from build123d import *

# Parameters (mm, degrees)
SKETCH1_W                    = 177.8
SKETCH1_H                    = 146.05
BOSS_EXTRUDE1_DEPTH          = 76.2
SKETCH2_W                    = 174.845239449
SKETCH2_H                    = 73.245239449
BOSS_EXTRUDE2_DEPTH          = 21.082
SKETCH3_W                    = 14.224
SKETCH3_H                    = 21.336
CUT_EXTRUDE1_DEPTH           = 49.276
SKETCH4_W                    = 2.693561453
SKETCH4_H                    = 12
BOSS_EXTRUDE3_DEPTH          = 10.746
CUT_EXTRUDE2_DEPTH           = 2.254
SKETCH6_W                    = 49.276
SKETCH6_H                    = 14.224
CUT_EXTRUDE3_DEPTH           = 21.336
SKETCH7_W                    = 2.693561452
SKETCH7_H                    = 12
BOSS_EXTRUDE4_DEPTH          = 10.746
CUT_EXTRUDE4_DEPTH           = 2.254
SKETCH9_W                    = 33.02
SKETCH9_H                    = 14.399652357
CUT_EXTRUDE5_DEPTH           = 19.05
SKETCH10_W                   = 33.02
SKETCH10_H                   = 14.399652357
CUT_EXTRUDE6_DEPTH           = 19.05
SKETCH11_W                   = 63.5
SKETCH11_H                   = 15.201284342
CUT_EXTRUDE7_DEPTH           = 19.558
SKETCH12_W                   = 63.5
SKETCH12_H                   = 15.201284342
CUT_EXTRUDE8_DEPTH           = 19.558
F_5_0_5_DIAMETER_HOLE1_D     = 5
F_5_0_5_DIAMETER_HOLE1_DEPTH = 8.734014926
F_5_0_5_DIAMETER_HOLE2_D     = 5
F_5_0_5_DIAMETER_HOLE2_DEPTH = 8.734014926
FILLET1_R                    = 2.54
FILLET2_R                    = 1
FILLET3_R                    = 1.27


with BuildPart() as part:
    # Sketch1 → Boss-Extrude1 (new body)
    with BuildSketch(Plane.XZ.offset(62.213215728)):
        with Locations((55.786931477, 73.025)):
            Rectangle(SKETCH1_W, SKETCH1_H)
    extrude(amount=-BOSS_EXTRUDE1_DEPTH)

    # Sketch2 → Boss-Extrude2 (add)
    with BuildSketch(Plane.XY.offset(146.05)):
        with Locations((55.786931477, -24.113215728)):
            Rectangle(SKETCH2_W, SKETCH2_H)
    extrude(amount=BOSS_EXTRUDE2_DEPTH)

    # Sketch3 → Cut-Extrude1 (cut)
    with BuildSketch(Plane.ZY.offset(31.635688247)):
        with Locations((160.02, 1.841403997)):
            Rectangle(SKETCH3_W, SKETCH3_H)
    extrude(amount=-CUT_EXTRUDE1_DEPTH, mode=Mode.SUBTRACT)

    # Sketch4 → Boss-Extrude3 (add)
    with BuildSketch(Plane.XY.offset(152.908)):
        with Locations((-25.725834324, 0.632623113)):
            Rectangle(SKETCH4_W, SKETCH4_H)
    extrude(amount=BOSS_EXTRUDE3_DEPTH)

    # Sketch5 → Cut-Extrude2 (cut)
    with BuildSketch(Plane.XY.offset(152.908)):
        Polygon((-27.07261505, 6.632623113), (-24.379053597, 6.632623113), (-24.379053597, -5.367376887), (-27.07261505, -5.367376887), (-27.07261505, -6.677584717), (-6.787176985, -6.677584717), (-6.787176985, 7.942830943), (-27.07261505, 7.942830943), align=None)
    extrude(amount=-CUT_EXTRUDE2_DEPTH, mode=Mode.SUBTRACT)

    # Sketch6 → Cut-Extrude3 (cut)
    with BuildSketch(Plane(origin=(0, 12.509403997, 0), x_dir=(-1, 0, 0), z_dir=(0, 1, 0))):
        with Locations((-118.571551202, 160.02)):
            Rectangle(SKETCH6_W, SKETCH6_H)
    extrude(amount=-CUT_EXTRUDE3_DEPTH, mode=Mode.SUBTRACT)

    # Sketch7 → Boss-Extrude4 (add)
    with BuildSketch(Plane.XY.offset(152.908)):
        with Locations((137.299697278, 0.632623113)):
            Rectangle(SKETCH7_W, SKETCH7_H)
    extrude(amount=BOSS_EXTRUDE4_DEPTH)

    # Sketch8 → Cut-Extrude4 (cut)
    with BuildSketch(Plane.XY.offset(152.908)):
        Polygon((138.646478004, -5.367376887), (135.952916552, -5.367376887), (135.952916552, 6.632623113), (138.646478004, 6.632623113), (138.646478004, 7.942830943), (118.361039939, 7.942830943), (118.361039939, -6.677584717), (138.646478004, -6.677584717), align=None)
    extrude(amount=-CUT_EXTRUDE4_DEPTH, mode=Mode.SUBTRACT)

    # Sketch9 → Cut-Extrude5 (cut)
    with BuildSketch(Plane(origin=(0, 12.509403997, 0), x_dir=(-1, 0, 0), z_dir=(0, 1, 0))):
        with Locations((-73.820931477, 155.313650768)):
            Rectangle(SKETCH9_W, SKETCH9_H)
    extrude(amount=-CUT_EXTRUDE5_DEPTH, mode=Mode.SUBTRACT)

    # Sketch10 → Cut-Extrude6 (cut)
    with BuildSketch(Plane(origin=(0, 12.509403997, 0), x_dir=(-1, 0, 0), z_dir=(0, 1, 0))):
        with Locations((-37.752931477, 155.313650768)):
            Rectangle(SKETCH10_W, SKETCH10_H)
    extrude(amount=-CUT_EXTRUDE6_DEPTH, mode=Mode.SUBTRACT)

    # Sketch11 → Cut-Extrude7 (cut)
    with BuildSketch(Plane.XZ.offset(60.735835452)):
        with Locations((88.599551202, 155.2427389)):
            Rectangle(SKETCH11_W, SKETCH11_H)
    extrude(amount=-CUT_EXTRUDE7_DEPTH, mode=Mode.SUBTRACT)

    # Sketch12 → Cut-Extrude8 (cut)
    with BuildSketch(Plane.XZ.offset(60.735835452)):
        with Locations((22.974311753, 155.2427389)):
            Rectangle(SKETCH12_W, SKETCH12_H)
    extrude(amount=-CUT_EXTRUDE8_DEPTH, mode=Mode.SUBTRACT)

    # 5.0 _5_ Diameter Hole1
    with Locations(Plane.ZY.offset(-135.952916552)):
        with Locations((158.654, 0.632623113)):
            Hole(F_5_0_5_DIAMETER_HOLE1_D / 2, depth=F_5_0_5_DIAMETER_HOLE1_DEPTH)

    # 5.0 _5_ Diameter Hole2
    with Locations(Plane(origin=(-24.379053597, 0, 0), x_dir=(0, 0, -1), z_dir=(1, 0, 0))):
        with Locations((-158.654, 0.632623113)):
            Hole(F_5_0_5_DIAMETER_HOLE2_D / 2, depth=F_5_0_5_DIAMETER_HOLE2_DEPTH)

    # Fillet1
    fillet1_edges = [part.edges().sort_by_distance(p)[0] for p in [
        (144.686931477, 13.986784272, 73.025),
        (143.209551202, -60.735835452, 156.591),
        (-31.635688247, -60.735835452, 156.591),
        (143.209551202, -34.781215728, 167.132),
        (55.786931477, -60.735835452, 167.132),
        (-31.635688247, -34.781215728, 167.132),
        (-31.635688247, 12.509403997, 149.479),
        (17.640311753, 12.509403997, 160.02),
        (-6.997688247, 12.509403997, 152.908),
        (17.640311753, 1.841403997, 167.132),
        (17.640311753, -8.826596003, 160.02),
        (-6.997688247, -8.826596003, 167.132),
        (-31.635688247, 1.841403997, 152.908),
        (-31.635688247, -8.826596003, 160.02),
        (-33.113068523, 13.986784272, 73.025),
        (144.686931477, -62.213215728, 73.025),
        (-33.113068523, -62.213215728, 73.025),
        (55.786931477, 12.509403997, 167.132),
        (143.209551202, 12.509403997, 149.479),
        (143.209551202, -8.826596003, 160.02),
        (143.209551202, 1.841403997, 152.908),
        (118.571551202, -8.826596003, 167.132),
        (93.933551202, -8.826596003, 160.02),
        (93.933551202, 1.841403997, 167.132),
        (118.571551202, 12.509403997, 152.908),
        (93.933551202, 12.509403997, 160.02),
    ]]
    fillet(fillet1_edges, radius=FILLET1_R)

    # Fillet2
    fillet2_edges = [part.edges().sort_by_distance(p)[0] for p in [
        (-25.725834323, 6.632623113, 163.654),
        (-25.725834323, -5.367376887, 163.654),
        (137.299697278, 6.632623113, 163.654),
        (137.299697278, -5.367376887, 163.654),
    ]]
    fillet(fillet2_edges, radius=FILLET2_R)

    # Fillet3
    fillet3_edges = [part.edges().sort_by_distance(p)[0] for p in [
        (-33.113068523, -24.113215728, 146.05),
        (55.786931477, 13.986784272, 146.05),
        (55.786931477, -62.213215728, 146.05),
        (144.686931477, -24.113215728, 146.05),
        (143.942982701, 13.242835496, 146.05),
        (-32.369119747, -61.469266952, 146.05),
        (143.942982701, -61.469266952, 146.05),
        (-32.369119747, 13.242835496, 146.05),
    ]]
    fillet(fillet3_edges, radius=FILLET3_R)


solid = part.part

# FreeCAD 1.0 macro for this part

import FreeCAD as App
import Part
import Sketcher
from FreeCAD import Vector
Q = App.Units.Quantity


def edges_at(feature, points):
    """Names of the edges that pass closest to the given points."""
    edges = feature.Shape.Edges
    near = lambda p: min(range(len(edges)), key=lambda i: edges[i].distToShape(Part.Vertex(*p))[0])
    return sorted({f"Edge{near(p) + 1}" for p in points})

doc = App.newDocument("Part")
params = doc.addObject("Spreadsheet::Sheet", "Params")
for row, (alias, value) in enumerate([
    ("sketch1_width", "7 in"),
    ("sketch1_height", "5.75 in"),
    ("pad1_length", "3 in"),
    ("pad2_length", "0.83 in"),
    ("sketch3_width", "0.84 in"),
    ("sketch3_height", "0.56 in"),
    ("pocket1_length", "1.94 in"),
    ("pad3_length", "10.746 mm"),
    ("pocket2_length", "2.254 mm"),
    ("sketch6_width", "1.94 in"),
    ("sketch6_height", "0.56 in"),
    ("pocket3_length", "0.84 in"),
    ("pad4_length", "10.746 mm"),
    ("pocket4_length", "2.254 mm"),
    ("sketch9_width", "1.3 in"),
    ("pocket5_length", "0.75 in"),
    ("sketch10_width", "1.3 in"),
    ("pocket6_length", "0.75 in"),
    ("sketch11_width", "2.5 in"),
    ("pocket7_length", "0.77 in"),
    ("sketch12_width", "2.5 in"),
    ("pocket8_length", "0.77 in"),
    ("hole_diameter", "5 mm"),
    ("hole_depth", "8.734015 mm"),
    ("hole2_diameter", "5 mm"),
    ("hole2_depth", "8.734015 mm"),
    ("fillet_radius", "0.1 in"),
    ("fillet2_radius", "1 mm"),
    ("fillet3_radius", "0.05 in"),
], start=1):
    params.set(f"A{row}", alias)
    params.set(f"B{row}", "=" + value)
    params.setAlias(f"B{row}", alias)

body = doc.addObject("PartDesign::Body", "Body")

# Sketch on XZ plane
sketch1 = body.newObject("Sketcher::SketchObject", "Sketch")
sketch1.AttachmentSupport = (doc.getObject("XZ_Plane"), [""])
sketch1.MapMode = "FlatFace"
sketch1.AttachmentOffset = App.Placement(Vector(0, 0, 62.213216), App.Rotation())
sketch1.addGeometry(Part.LineSegment(Vector(-33, 146, 0), Vector(-33, 0, 0)), False)
sketch1.addGeometry(Part.LineSegment(Vector(-33, 0, 0), Vector(145, 0, 0)), False)
sketch1.addGeometry(Part.LineSegment(Vector(145, 0, 0), Vector(145, 146, 0)), False)
sketch1.addGeometry(Part.LineSegment(Vector(145, 146, 0), Vector(-33, 146, 0)), False)
sketch1.addConstraint(Sketcher.Constraint("Coincident", 0, 2, 1, 1))
sketch1.addConstraint(Sketcher.Constraint("Coincident", 1, 2, 2, 1))
sketch1.addConstraint(Sketcher.Constraint("Coincident", 2, 2, 3, 1))
sketch1.addConstraint(Sketcher.Constraint("Coincident", 3, 2, 0, 1))
sketch1.addConstraint(Sketcher.Constraint("Vertical", 0))
sketch1.addConstraint(Sketcher.Constraint("Horizontal", 1))
sketch1.addConstraint(Sketcher.Constraint("Vertical", 2))
sketch1.addConstraint(Sketcher.Constraint("Horizontal", 3))
sketch1.addConstraint(Sketcher.Constraint("PointOnObject", 0, 2, -1))
sketch1.addConstraint(Sketcher.Constraint("DistanceX", 1, 1, 1, 2, Q("7 in")))
sketch1.addConstraint(Sketcher.Constraint("DistanceY", 0, 2, 0, 1, Q("5.75 in")))
sketch1.addConstraint(Sketcher.Constraint("DistanceX", 0, 2, -1, 1, 33.113069))
sketch1.setExpression("Constraints[9]", "Params.sketch1_width")
sketch1.setExpression("Constraints[10]", "Params.sketch1_height")
pad1 = body.newObject("PartDesign::Pad", "Pad")
pad1.Profile = sketch1
pad1.setExpression("Length", "Params.pad1_length")
pad1.Reversed = True

# Sketch on XY plane
sketch2 = body.newObject("Sketcher::SketchObject", "Sketch001")
sketch2.AttachmentSupport = (doc.getObject("XY_Plane"), [""])
sketch2.MapMode = "FlatFace"
sketch2.AttachmentOffset = App.Placement(Vector(0, 0, 5.75 * 25.4), App.Rotation())
sketch2.addGeometry(Part.LineSegment(Vector(-32, 13, 0), Vector(-32, -61, 0)), False)
sketch2.addGeometry(Part.LineSegment(Vector(-32, -61, 0), Vector(143, -61, 0)), False)
sketch2.addGeometry(Part.LineSegment(Vector(143, -61, 0), Vector(143, 13, 0)), False)
sketch2.addGeometry(Part.LineSegment(Vector(143, 13, 0), Vector(-32, 13, 0)), False)
sketch2.addConstraint(Sketcher.Constraint("Coincident", 0, 2, 1, 1))
sketch2.addConstraint(Sketcher.Constraint("Coincident", 1, 2, 2, 1))
sketch2.addConstraint(Sketcher.Constraint("Coincident", 2, 2, 3, 1))
sketch2.addConstraint(Sketcher.Constraint("Coincident", 3, 2, 0, 1))
sketch2.addConstraint(Sketcher.Constraint("Vertical", 0))
sketch2.addConstraint(Sketcher.Constraint("Horizontal", 1))
sketch2.addConstraint(Sketcher.Constraint("Vertical", 2))
sketch2.addConstraint(Sketcher.Constraint("Horizontal", 3))
sketch2.addConstraint(Sketcher.Constraint("DistanceX", 1, 1, 1, 2, 174.845239))
sketch2.addConstraint(Sketcher.Constraint("DistanceY", 0, 2, 0, 1, 73.245239))
sketch2.addConstraint(Sketcher.Constraint("DistanceX", 0, 2, -1, 1, 31.635688))
sketch2.addConstraint(Sketcher.Constraint("DistanceY", 0, 2, -1, 1, 60.735835))
pad2 = body.newObject("PartDesign::Pad", "Pad001")
pad2.Profile = sketch2
pad2.setExpression("Length", "Params.pad2_length")

# Sketch on YZ plane
sketch3 = body.newObject("Sketcher::SketchObject", "Sketch002")
sketch3.AttachmentSupport = (doc.getObject("YZ_Plane"), [""])
sketch3.MapMode = "FlatFace"
sketch3.AttachmentOffset = App.Placement(Vector(0, 0, -31.635688), App.Rotation())
sketch3.addGeometry(Part.LineSegment(Vector(13, 153, 0), Vector(-9, 153, 0)), False)
sketch3.addGeometry(Part.LineSegment(Vector(-9, 153, 0), Vector(-9, 167, 0)), False)
sketch3.addGeometry(Part.LineSegment(Vector(-9, 167, 0), Vector(13, 167, 0)), False)
sketch3.addGeometry(Part.LineSegment(Vector(13, 167, 0), Vector(13, 153, 0)), False)
sketch3.addConstraint(Sketcher.Constraint("Coincident", 0, 2, 1, 1))
sketch3.addConstraint(Sketcher.Constraint("Coincident", 1, 2, 2, 1))
sketch3.addConstraint(Sketcher.Constraint("Coincident", 2, 2, 3, 1))
sketch3.addConstraint(Sketcher.Constraint("Coincident", 3, 2, 0, 1))
sketch3.addConstraint(Sketcher.Constraint("Horizontal", 0))
sketch3.addConstraint(Sketcher.Constraint("Vertical", 1))
sketch3.addConstraint(Sketcher.Constraint("Horizontal", 2))
sketch3.addConstraint(Sketcher.Constraint("Vertical", 3))
sketch3.addConstraint(Sketcher.Constraint("DistanceX", 0, 2, 0, 1, Q("0.84 in")))
sketch3.addConstraint(Sketcher.Constraint("DistanceY", 1, 1, 1, 2, Q("0.56 in")))
sketch3.addConstraint(Sketcher.Constraint("DistanceY", -1, 1, 0, 2, Q("6.02 in")))
sketch3.addConstraint(Sketcher.Constraint("DistanceX", 0, 2, -1, 1, 8.826596))
sketch3.setExpression("Constraints[8]", "Params.sketch3_width")
sketch3.setExpression("Constraints[9]", "Params.sketch3_height")
pocket1 = body.newObject("PartDesign::Pocket", "Pocket")
pocket1.Profile = sketch3
pocket1.setExpression("Length", "Params.pocket1_length")
pocket1.Reversed = True

# Sketch on XY plane
sketch4 = body.newObject("Sketcher::SketchObject", "Sketch003")
sketch4.AttachmentSupport = (doc.getObject("XY_Plane"), [""])
sketch4.MapMode = "FlatFace"
sketch4.AttachmentOffset = App.Placement(Vector(0, 0, 6.02 * 25.4), App.Rotation())
sketch4.addGeometry(Part.LineSegment(Vector(-27.1, 6.6, 0), Vector(-27.1, -5.4, 0)), False)
sketch4.addGeometry(Part.LineSegment(Vector(-27.1, -5.4, 0), Vector(-24.4, -5.4, 0)), False)
sketch4.addGeometry(Part.LineSegment(Vector(-24.4, -5.4, 0), Vector(-24.4, 6.6, 0)), False)
sketch4.addGeometry(Part.LineSegment(Vector(-24.4, 6.6, 0), Vector(-27.1, 6.6, 0)), False)
sketch4.addConstraint(Sketcher.Constraint("Coincident", 0, 2, 1, 1))
sketch4.addConstraint(Sketcher.Constraint("Coincident", 1, 2, 2, 1))
sketch4.addConstraint(Sketcher.Constraint("Coincident", 2, 2, 3, 1))
sketch4.addConstraint(Sketcher.Constraint("Coincident", 3, 2, 0, 1))
sketch4.addConstraint(Sketcher.Constraint("Vertical", 0))
sketch4.addConstraint(Sketcher.Constraint("Horizontal", 1))
sketch4.addConstraint(Sketcher.Constraint("Vertical", 2))
sketch4.addConstraint(Sketcher.Constraint("Horizontal", 3))
sketch4.addConstraint(Sketcher.Constraint("DistanceY", 0, 2, 0, 1, 12.0))
sketch4.addConstraint(Sketcher.Constraint("DistanceX", 1, 1, 1, 2, 2.693561))
sketch4.addConstraint(Sketcher.Constraint("DistanceX", 0, 2, -1, 1, 27.072615))
sketch4.addConstraint(Sketcher.Constraint("DistanceY", 0, 2, -1, 1, 5.367377))
pad3 = body.newObject("PartDesign::Pad", "Pad002")
pad3.Profile = sketch4
pad3.setExpression("Length", "Params.pad3_length")

# Sketch on XY plane
sketch5 = body.newObject("Sketcher::SketchObject", "Sketch004")
sketch5.AttachmentSupport = (doc.getObject("XY_Plane"), [""])
sketch5.MapMode = "FlatFace"
sketch5.AttachmentOffset = App.Placement(Vector(0, 0, 6.02 * 25.4), App.Rotation())
sketch5.addGeometry(Part.LineSegment(Vector(-27.1, 6.6, 0), Vector(-24.4, 6.6, 0)), False)
sketch5.addGeometry(Part.LineSegment(Vector(-24.4, 6.6, 0), Vector(-24.4, -5.4, 0)), False)
sketch5.addGeometry(Part.LineSegment(Vector(-24.4, -5.4, 0), Vector(-27.1, -5.4, 0)), False)
sketch5.addGeometry(Part.LineSegment(Vector(-27.1, -5.4, 0), Vector(-27.1, -6.7, 0)), False)
sketch5.addGeometry(Part.LineSegment(Vector(-27.1, -6.7, 0), Vector(-6.8, -6.7, 0)), False)
sketch5.addGeometry(Part.LineSegment(Vector(-6.8, -6.7, 0), Vector(-6.8, 7.9, 0)), False)
sketch5.addGeometry(Part.LineSegment(Vector(-6.8, 7.9, 0), Vector(-27.1, 7.9, 0)), False)
sketch5.addGeometry(Part.LineSegment(Vector(-27.1, 7.9, 0), Vector(-27.1, 6.6, 0)), False)
sketch5.addConstraint(Sketcher.Constraint("Coincident", 0, 2, 1, 1))
sketch5.addConstraint(Sketcher.Constraint("Coincident", 1, 2, 2, 1))
sketch5.addConstraint(Sketcher.Constraint("Coincident", 2, 2, 3, 1))
sketch5.addConstraint(Sketcher.Constraint("Coincident", 3, 2, 4, 1))
sketch5.addConstraint(Sketcher.Constraint("Coincident", 4, 2, 5, 1))
sketch5.addConstraint(Sketcher.Constraint("Coincident", 5, 2, 6, 1))
sketch5.addConstraint(Sketcher.Constraint("Coincident", 6, 2, 7, 1))
sketch5.addConstraint(Sketcher.Constraint("Coincident", 7, 2, 0, 1))
sketch5.addConstraint(Sketcher.Constraint("Horizontal", 0))
sketch5.addConstraint(Sketcher.Constraint("Vertical", 1))
sketch5.addConstraint(Sketcher.Constraint("Horizontal", 2))
sketch5.addConstraint(Sketcher.Constraint("Vertical", 3))
sketch5.addConstraint(Sketcher.Constraint("Horizontal", 4))
sketch5.addConstraint(Sketcher.Constraint("Vertical", 5))
sketch5.addConstraint(Sketcher.Constraint("Horizontal", 6))
sketch5.addConstraint(Sketcher.Constraint("Vertical", 7))
sketch5.addConstraint(Sketcher.Constraint("Vertical", 3, 2, 6, 2))
sketch5.addConstraint(Sketcher.Constraint("Equal", 3, 7))
sketch5.addConstraint(Sketcher.Constraint("DistanceY", 1, 2, 1, 1, 12.0))
sketch5.addConstraint(Sketcher.Constraint("DistanceX", 0, 1, 0, 2, 2.693561))
sketch5.addConstraint(Sketcher.Constraint("DistanceX", 4, 1, 4, 2, 20.285438))
sketch5.addConstraint(Sketcher.Constraint("DistanceY", 3, 2, 3, 1, 1.310208))
sketch5.addConstraint(Sketcher.Constraint("DistanceY", -1, 1, 5, 2, 7.942831))
sketch5.addConstraint(Sketcher.Constraint("DistanceX", 0, 2, -1, 1, 24.379054))
pocket2 = body.newObject("PartDesign::Pocket", "Pocket001")
pocket2.Profile = sketch5
pocket2.setExpression("Length", "Params.pocket2_length")

# Sketch on XZ plane
sketch6 = body.newObject("Sketcher::SketchObject", "Sketch005")
sketch6.AttachmentSupport = (doc.getObject("XZ_Plane"), [""])
sketch6.MapMode = "FlatFace"
sketch6.AttachmentOffset = App.Placement(Vector(0, 0, -12.509404), App.Rotation())
sketch6.addGeometry(Part.LineSegment(Vector(143, 167, 0), Vector(143, 153, 0)), False)
sketch6.addGeometry(Part.LineSegment(Vector(143, 153, 0), Vector(94, 153, 0)), False)
sketch6.addGeometry(Part.LineSegment(Vector(94, 153, 0), Vector(94, 167, 0)), False)
sketch6.addGeometry(Part.LineSegment(Vector(94, 167, 0), Vector(143, 167, 0)), False)
sketch6.addConstraint(Sketcher.Constraint("Coincident", 0, 2, 1, 1))
sketch6.addConstraint(Sketcher.Constraint("Coincident", 1, 2, 2, 1))
sketch6.addConstraint(Sketcher.Constraint("Coincident", 2, 2, 3, 1))
sketch6.addConstraint(Sketcher.Constraint("Coincident", 3, 2, 0, 1))
sketch6.addConstraint(Sketcher.Constraint("Vertical", 0))
sketch6.addConstraint(Sketcher.Constraint("Horizontal", 1))
sketch6.addConstraint(Sketcher.Constraint("Vertical", 2))
sketch6.addConstraint(Sketcher.Constraint("Horizontal", 3))
sketch6.addConstraint(Sketcher.Constraint("DistanceX", 1, 2, 1, 1, Q("1.94 in")))
sketch6.addConstraint(Sketcher.Constraint("DistanceY", 0, 2, 0, 1, Q("0.56 in")))
sketch6.addConstraint(Sketcher.Constraint("DistanceY", -1, 1, 0, 2, Q("6.02 in")))
sketch6.addConstraint(Sketcher.Constraint("DistanceX", -1, 1, 0, 2, 143.209551))
sketch6.setExpression("Constraints[8]", "Params.sketch6_width")
sketch6.setExpression("Constraints[9]", "Params.sketch6_height")
pocket3 = body.newObject("PartDesign::Pocket", "Pocket002")
pocket3.Profile = sketch6
pocket3.setExpression("Length", "Params.pocket3_length")
pocket3.Reversed = True

# Sketch on XY plane
sketch7 = body.newObject("Sketcher::SketchObject", "Sketch006")
sketch7.AttachmentSupport = (doc.getObject("XY_Plane"), [""])
sketch7.MapMode = "FlatFace"
sketch7.AttachmentOffset = App.Placement(Vector(0, 0, 6.02 * 25.4), App.Rotation())
sketch7.addGeometry(Part.LineSegment(Vector(136, 6.6, 0), Vector(136, -5.4, 0)), False)
sketch7.addGeometry(Part.LineSegment(Vector(136, -5.4, 0), Vector(138.6, -5.4, 0)), False)
sketch7.addGeometry(Part.LineSegment(Vector(138.6, -5.4, 0), Vector(138.6, 6.6, 0)), False)
sketch7.addGeometry(Part.LineSegment(Vector(138.6, 6.6, 0), Vector(136, 6.6, 0)), False)
sketch7.addConstraint(Sketcher.Constraint("Coincident", 0, 2, 1, 1))
sketch7.addConstraint(Sketcher.Constraint("Coincident", 1, 2, 2, 1))
sketch7.addConstraint(Sketcher.Constraint("Coincident", 2, 2, 3, 1))
sketch7.addConstraint(Sketcher.Constraint("Coincident", 3, 2, 0, 1))
sketch7.addConstraint(Sketcher.Constraint("Vertical", 0))
sketch7.addConstraint(Sketcher.Constraint("Horizontal", 1))
sketch7.addConstraint(Sketcher.Constraint("Vertical", 2))
sketch7.addConstraint(Sketcher.Constraint("Horizontal", 3))
sketch7.addConstraint(Sketcher.Constraint("DistanceY", 0, 2, 0, 1, 12.0))
sketch7.addConstraint(Sketcher.Constraint("DistanceX", 1, 1, 1, 2, 2.693561))
sketch7.addConstraint(Sketcher.Constraint("DistanceX", -1, 1, 1, 2, 138.646478))
sketch7.addConstraint(Sketcher.Constraint("DistanceY", 0, 2, -1, 1, 5.367377))
pad4 = body.newObject("PartDesign::Pad", "Pad003")
pad4.Profile = sketch7
pad4.setExpression("Length", "Params.pad4_length")

# Sketch on XY plane
sketch8 = body.newObject("Sketcher::SketchObject", "Sketch007")
sketch8.AttachmentSupport = (doc.getObject("XY_Plane"), [""])
sketch8.MapMode = "FlatFace"
sketch8.AttachmentOffset = App.Placement(Vector(0, 0, 6.02 * 25.4), App.Rotation())
sketch8.addGeometry(Part.LineSegment(Vector(138.6, -5.4, 0), Vector(136, -5.4, 0)), False)
sketch8.addGeometry(Part.LineSegment(Vector(136, -5.4, 0), Vector(136, 6.6, 0)), False)
sketch8.addGeometry(Part.LineSegment(Vector(136, 6.6, 0), Vector(138.6, 6.6, 0)), False)
sketch8.addGeometry(Part.LineSegment(Vector(138.6, 6.6, 0), Vector(138.6, 7.9, 0)), False)
sketch8.addGeometry(Part.LineSegment(Vector(138.6, 7.9, 0), Vector(118.4, 7.9, 0)), False)
sketch8.addGeometry(Part.LineSegment(Vector(118.4, 7.9, 0), Vector(118.4, -6.7, 0)), False)
sketch8.addGeometry(Part.LineSegment(Vector(118.4, -6.7, 0), Vector(138.6, -6.7, 0)), False)
sketch8.addGeometry(Part.LineSegment(Vector(138.6, -6.7, 0), Vector(138.6, -5.4, 0)), False)
sketch8.addConstraint(Sketcher.Constraint("Coincident", 0, 2, 1, 1))
sketch8.addConstraint(Sketcher.Constraint("Coincident", 1, 2, 2, 1))
sketch8.addConstraint(Sketcher.Constraint("Coincident", 2, 2, 3, 1))
sketch8.addConstraint(Sketcher.Constraint("Coincident", 3, 2, 4, 1))
sketch8.addConstraint(Sketcher.Constraint("Coincident", 4, 2, 5, 1))
sketch8.addConstraint(Sketcher.Constraint("Coincident", 5, 2, 6, 1))
sketch8.addConstraint(Sketcher.Constraint("Coincident", 6, 2, 7, 1))
sketch8.addConstraint(Sketcher.Constraint("Coincident", 7, 2, 0, 1))
sketch8.addConstraint(Sketcher.Constraint("Horizontal", 0))
sketch8.addConstraint(Sketcher.Constraint("Vertical", 1))
sketch8.addConstraint(Sketcher.Constraint("Horizontal", 2))
sketch8.addConstraint(Sketcher.Constraint("Vertical", 3))
sketch8.addConstraint(Sketcher.Constraint("Horizontal", 4))
sketch8.addConstraint(Sketcher.Constraint("Vertical", 5))
sketch8.addConstraint(Sketcher.Constraint("Horizontal", 6))
sketch8.addConstraint(Sketcher.Constraint("Vertical", 7))
sketch8.addConstraint(Sketcher.Constraint("Vertical", 3, 2, 6, 2))
sketch8.addConstraint(Sketcher.Constraint("Equal", 3, 7))
sketch8.addConstraint(Sketcher.Constraint("DistanceY", 1, 1, 1, 2, 12.0))
sketch8.addConstraint(Sketcher.Constraint("DistanceX", 0, 2, 0, 1, 2.693561))
sketch8.addConstraint(Sketcher.Constraint("DistanceX", 4, 2, 4, 1, 20.285438))
sketch8.addConstraint(Sketcher.Constraint("DistanceY", 3, 1, 3, 2, 1.310208))
sketch8.addConstraint(Sketcher.Constraint("DistanceX", -1, 1, 2, 2, 138.646478))
sketch8.addConstraint(Sketcher.Constraint("DistanceY", -1, 1, 3, 2, 7.942831))
pocket4 = body.newObject("PartDesign::Pocket", "Pocket003")
pocket4.Profile = sketch8
pocket4.setExpression("Length", "Params.pocket4_length")

# Sketch on XZ plane
sketch9 = body.newObject("Sketcher::SketchObject", "Sketch008")
sketch9.AttachmentSupport = (doc.getObject("XZ_Plane"), [""])
sketch9.MapMode = "FlatFace"
sketch9.AttachmentOffset = App.Placement(Vector(0, 0, -12.509404), App.Rotation())
sketch9.addGeometry(Part.LineSegment(Vector(90, 163, 0), Vector(90, 148, 0)), False)
sketch9.addGeometry(Part.LineSegment(Vector(90, 148, 0), Vector(57, 148, 0)), False)
sketch9.addGeometry(Part.LineSegment(Vector(57, 148, 0), Vector(57, 163, 0)), False)
sketch9.addGeometry(Part.LineSegment(Vector(57, 163, 0), Vector(90, 163, 0)), False)
sketch9.addConstraint(Sketcher.Constraint("Coincident", 0, 2, 1, 1))
sketch9.addConstraint(Sketcher.Constraint("Coincident", 1, 2, 2, 1))
sketch9.addConstraint(Sketcher.Constraint("Coincident", 2, 2, 3, 1))
sketch9.addConstraint(Sketcher.Constraint("Coincident", 3, 2, 0, 1))
sketch9.addConstraint(Sketcher.Constraint("Vertical", 0))
sketch9.addConstraint(Sketcher.Constraint("Horizontal", 1))
sketch9.addConstraint(Sketcher.Constraint("Vertical", 2))
sketch9.addConstraint(Sketcher.Constraint("Horizontal", 3))
sketch9.addConstraint(Sketcher.Constraint("DistanceX", 1, 2, 1, 1, Q("1.3 in")))
sketch9.addConstraint(Sketcher.Constraint("DistanceY", 0, 2, 0, 1, 14.399652))
sketch9.addConstraint(Sketcher.Constraint("DistanceX", -1, 1, 0, 2, 90.330931))
sketch9.addConstraint(Sketcher.Constraint("DistanceY", -1, 1, 0, 2, 148.113825))
sketch9.setExpression("Constraints[8]", "Params.sketch9_width")
pocket5 = body.newObject("PartDesign::Pocket", "Pocket004")
pocket5.Profile = sketch9
pocket5.setExpression("Length", "Params.pocket5_length")
pocket5.Reversed = True

# Sketch on XZ plane
sketch10 = body.newObject("Sketcher::SketchObject", "Sketch009")
sketch10.AttachmentSupport = (doc.getObject("XZ_Plane"), [""])
sketch10.MapMode = "FlatFace"
sketch10.AttachmentOffset = App.Placement(Vector(0, 0, -12.509404), App.Rotation())
sketch10.addGeometry(Part.LineSegment(Vector(54, 163, 0), Vector(54, 148, 0)), False)
sketch10.addGeometry(Part.LineSegment(Vector(54, 148, 0), Vector(21, 148, 0)), False)
sketch10.addGeometry(Part.LineSegment(Vector(21, 148, 0), Vector(21, 163, 0)), False)
sketch10.addGeometry(Part.LineSegment(Vector(21, 163, 0), Vector(54, 163, 0)), False)
sketch10.addConstraint(Sketcher.Constraint("Coincident", 0, 2, 1, 1))
sketch10.addConstraint(Sketcher.Constraint("Coincident", 1, 2, 2, 1))
sketch10.addConstraint(Sketcher.Constraint("Coincident", 2, 2, 3, 1))
sketch10.addConstraint(Sketcher.Constraint("Coincident", 3, 2, 0, 1))
sketch10.addConstraint(Sketcher.Constraint("Vertical", 0))
sketch10.addConstraint(Sketcher.Constraint("Horizontal", 1))
sketch10.addConstraint(Sketcher.Constraint("Vertical", 2))
sketch10.addConstraint(Sketcher.Constraint("Horizontal", 3))
sketch10.addConstraint(Sketcher.Constraint("DistanceX", 1, 2, 1, 1, Q("1.3 in")))
sketch10.addConstraint(Sketcher.Constraint("DistanceY", 0, 2, 0, 1, 14.399652))
sketch10.addConstraint(Sketcher.Constraint("DistanceX", -1, 1, 0, 2, 54.262931))
sketch10.addConstraint(Sketcher.Constraint("DistanceY", -1, 1, 0, 2, 148.113825))
sketch10.setExpression("Constraints[8]", "Params.sketch10_width")
pocket6 = body.newObject("PartDesign::Pocket", "Pocket005")
pocket6.Profile = sketch10
pocket6.setExpression("Length", "Params.pocket6_length")
pocket6.Reversed = True

# Sketch on XZ plane
sketch11 = body.newObject("Sketcher::SketchObject", "Sketch010")
sketch11.AttachmentSupport = (doc.getObject("XZ_Plane"), [""])
sketch11.MapMode = "FlatFace"
sketch11.AttachmentOffset = App.Placement(Vector(0, 0, 60.735835), App.Rotation())
sketch11.addGeometry(Part.LineSegment(Vector(57, 163, 0), Vector(57, 148, 0)), False)
sketch11.addGeometry(Part.LineSegment(Vector(57, 148, 0), Vector(120, 148, 0)), False)
sketch11.addGeometry(Part.LineSegment(Vector(120, 148, 0), Vector(120, 163, 0)), False)
sketch11.addGeometry(Part.LineSegment(Vector(120, 163, 0), Vector(57, 163, 0)), False)
sketch11.addConstraint(Sketcher.Constraint("Coincident", 0, 2, 1, 1))
sketch11.addConstraint(Sketcher.Constraint("Coincident", 1, 2, 2, 1))
sketch11.addConstraint(Sketcher.Constraint("Coincident", 2, 2, 3, 1))
sketch11.addConstraint(Sketcher.Constraint("Coincident", 3, 2, 0, 1))
sketch11.addConstraint(Sketcher.Constraint("Vertical", 0))
sketch11.addConstraint(Sketcher.Constraint("Horizontal", 1))
sketch11.addConstraint(Sketcher.Constraint("Vertical", 2))
sketch11.addConstraint(Sketcher.Constraint("Horizontal", 3))
sketch11.addConstraint(Sketcher.Constraint("DistanceX", 1, 1, 1, 2, Q("2.5 in")))
sketch11.addConstraint(Sketcher.Constraint("DistanceY", 0, 2, 0, 1, 15.201284))
sketch11.addConstraint(Sketcher.Constraint("DistanceX", -1, 1, 0, 2, 56.849551))
sketch11.addConstraint(Sketcher.Constraint("DistanceY", -1, 1, 2, 2, 162.843381))
sketch11.setExpression("Constraints[8]", "Params.sketch11_width")
pocket7 = body.newObject("PartDesign::Pocket", "Pocket006")
pocket7.Profile = sketch11
pocket7.setExpression("Length", "Params.pocket7_length")

# Sketch on XZ plane
sketch12 = body.newObject("Sketcher::SketchObject", "Sketch011")
sketch12.AttachmentSupport = (doc.getObject("XZ_Plane"), [""])
sketch12.MapMode = "FlatFace"
sketch12.AttachmentOffset = App.Placement(Vector(0, 0, 60.735835), App.Rotation())
sketch12.addGeometry(Part.LineSegment(Vector(-9, 163, 0), Vector(-9, 148, 0)), False)
sketch12.addGeometry(Part.LineSegment(Vector(-9, 148, 0), Vector(55, 148, 0)), False)
sketch12.addGeometry(Part.LineSegment(Vector(55, 148, 0), Vector(55, 163, 0)), False)
sketch12.addGeometry(Part.LineSegment(Vector(55, 163, 0), Vector(-9, 163, 0)), False)
sketch12.addConstraint(Sketcher.Constraint("Coincident", 0, 2, 1, 1))
sketch12.addConstraint(Sketcher.Constraint("Coincident", 1, 2, 2, 1))
sketch12.addConstraint(Sketcher.Constraint("Coincident", 2, 2, 3, 1))
sketch12.addConstraint(Sketcher.Constraint("Coincident", 3, 2, 0, 1))
sketch12.addConstraint(Sketcher.Constraint("Vertical", 0))
sketch12.addConstraint(Sketcher.Constraint("Horizontal", 1))
sketch12.addConstraint(Sketcher.Constraint("Vertical", 2))
sketch12.addConstraint(Sketcher.Constraint("Horizontal", 3))
sketch12.addConstraint(Sketcher.Constraint("DistanceX", 1, 1, 1, 2, Q("2.5 in")))
sketch12.addConstraint(Sketcher.Constraint("DistanceY", 0, 2, 0, 1, 15.201284))
sketch12.addConstraint(Sketcher.Constraint("DistanceX", 0, 2, -1, 1, 8.775688))
sketch12.addConstraint(Sketcher.Constraint("DistanceY", -1, 1, 2, 2, 162.843381))
sketch12.setExpression("Constraints[8]", "Params.sketch12_width")
pocket8 = body.newObject("PartDesign::Pocket", "Pocket007")
pocket8.Profile = sketch12
pocket8.setExpression("Length", "Params.pocket8_length")

# Sketch on YZ plane
sketch13 = body.newObject("Sketcher::SketchObject", "Sketch012")
sketch13.AttachmentSupport = (doc.getObject("YZ_Plane"), [""])
sketch13.MapMode = "FlatFace"
sketch13.AttachmentOffset = App.Placement(Vector(0, 0, 135.952917), App.Rotation())
sketch13.addGeometry(Part.Circle(Vector(0.6, 158.7, 0), Vector(0, 0, 1), 2.5), False)
sketch13.addConstraint(Sketcher.Constraint("Diameter", 0, 5.0))
sketch13.addConstraint(Sketcher.Constraint("DistanceY", -1, 1, 0, 3, 158.654))
sketch13.addConstraint(Sketcher.Constraint("DistanceX", -1, 1, 0, 3, 0.632623))
doc.recompute()
hole = body.newObject("PartDesign::Hole", "Hole")
hole.Profile = sketch13
hole.ThreadType = "None"
hole.setExpression("Diameter", "Params.hole_diameter")
hole.DepthType = "Dimension"
hole.setExpression("Depth", "Params.hole_depth")
hole.DrillPoint = "Flat"
hole.Reversed = True

# Sketch on YZ plane
sketch14 = body.newObject("Sketcher::SketchObject", "Sketch013")
sketch14.AttachmentSupport = (doc.getObject("YZ_Plane"), [""])
sketch14.MapMode = "FlatFace"
sketch14.AttachmentOffset = App.Placement(Vector(0, 0, -24.379054), App.Rotation())
sketch14.addGeometry(Part.Circle(Vector(0.6, 158.7, 0), Vector(0, 0, 1), 2.5), False)
sketch14.addConstraint(Sketcher.Constraint("Diameter", 0, 5.0))
sketch14.addConstraint(Sketcher.Constraint("DistanceY", -1, 1, 0, 3, 158.654))
sketch14.addConstraint(Sketcher.Constraint("DistanceX", -1, 1, 0, 3, 0.632623))
doc.recompute()
hole2 = body.newObject("PartDesign::Hole", "Hole001")
hole2.Profile = sketch14
hole2.ThreadType = "None"
hole2.setExpression("Diameter", "Params.hole2_diameter")
hole2.DepthType = "Dimension"
hole2.setExpression("Depth", "Params.hole2_depth")
hole2.DrillPoint = "Flat"
doc.recompute()

fillet = body.newObject("PartDesign::Fillet", "Fillet")
fillet.Base = (hole2, edges_at(hole2, [
    (144.687, 13.987, 73.025),
    (143.21, -60.736, 156.591),
    (-31.636, -60.736, 156.591),
    (143.21, -34.781, 167.132),
    (55.787, -60.736, 167.132),
    (-31.636, -34.781, 167.132),
    (-31.636, 12.509, 149.479),
    (17.64, 12.509, 160.02),
    (-6.998, 12.509, 152.908),
    (17.64, 1.841, 167.132),
    (17.64, -8.827, 160.02),
    (-6.998, -8.827, 167.132),
    (-31.636, 1.841, 152.908),
    (-31.636, -8.827, 160.02),
    (-33.113, 13.987, 73.025),
    (144.687, -62.213, 73.025),
    (-33.113, -62.213, 73.025),
    (55.787, 12.509, 167.132),
    (143.21, 12.509, 149.479),
    (143.21, -8.827, 160.02),
    (143.21, 1.841, 152.908),
    (118.572, -8.827, 167.132),
    (93.934, -8.827, 160.02),
    (93.934, 1.841, 167.132),
    (118.572, 12.509, 152.908),
    (93.934, 12.509, 160.02),
]))
fillet.setExpression("Radius", "Params.fillet_radius")
doc.recompute()

fillet2 = body.newObject("PartDesign::Fillet", "Fillet001")
fillet2.Base = (fillet, edges_at(fillet, [
    (-25.726, 6.633, 163.654),
    (-25.726, -5.367, 163.654),
    (137.3, 6.633, 163.654),
    (137.3, -5.367, 163.654),
]))
fillet2.setExpression("Radius", "Params.fillet2_radius")
doc.recompute()

fillet3 = body.newObject("PartDesign::Fillet", "Fillet002")
fillet3.Base = (fillet2, edges_at(fillet2, [
    (-33.113, -24.113, 146.05),
    (55.787, 13.987, 146.05),
    (55.787, -62.213, 146.05),
    (144.687, -24.113, 146.05),
    (143.943, 13.243, 146.05),
    (-32.369, -61.469, 146.05),
    (143.943, -61.469, 146.05),
    (-32.369, 13.243, 146.05),
]))
fillet3.setExpression("Radius", "Params.fillet3_radius")

doc.recompute()
